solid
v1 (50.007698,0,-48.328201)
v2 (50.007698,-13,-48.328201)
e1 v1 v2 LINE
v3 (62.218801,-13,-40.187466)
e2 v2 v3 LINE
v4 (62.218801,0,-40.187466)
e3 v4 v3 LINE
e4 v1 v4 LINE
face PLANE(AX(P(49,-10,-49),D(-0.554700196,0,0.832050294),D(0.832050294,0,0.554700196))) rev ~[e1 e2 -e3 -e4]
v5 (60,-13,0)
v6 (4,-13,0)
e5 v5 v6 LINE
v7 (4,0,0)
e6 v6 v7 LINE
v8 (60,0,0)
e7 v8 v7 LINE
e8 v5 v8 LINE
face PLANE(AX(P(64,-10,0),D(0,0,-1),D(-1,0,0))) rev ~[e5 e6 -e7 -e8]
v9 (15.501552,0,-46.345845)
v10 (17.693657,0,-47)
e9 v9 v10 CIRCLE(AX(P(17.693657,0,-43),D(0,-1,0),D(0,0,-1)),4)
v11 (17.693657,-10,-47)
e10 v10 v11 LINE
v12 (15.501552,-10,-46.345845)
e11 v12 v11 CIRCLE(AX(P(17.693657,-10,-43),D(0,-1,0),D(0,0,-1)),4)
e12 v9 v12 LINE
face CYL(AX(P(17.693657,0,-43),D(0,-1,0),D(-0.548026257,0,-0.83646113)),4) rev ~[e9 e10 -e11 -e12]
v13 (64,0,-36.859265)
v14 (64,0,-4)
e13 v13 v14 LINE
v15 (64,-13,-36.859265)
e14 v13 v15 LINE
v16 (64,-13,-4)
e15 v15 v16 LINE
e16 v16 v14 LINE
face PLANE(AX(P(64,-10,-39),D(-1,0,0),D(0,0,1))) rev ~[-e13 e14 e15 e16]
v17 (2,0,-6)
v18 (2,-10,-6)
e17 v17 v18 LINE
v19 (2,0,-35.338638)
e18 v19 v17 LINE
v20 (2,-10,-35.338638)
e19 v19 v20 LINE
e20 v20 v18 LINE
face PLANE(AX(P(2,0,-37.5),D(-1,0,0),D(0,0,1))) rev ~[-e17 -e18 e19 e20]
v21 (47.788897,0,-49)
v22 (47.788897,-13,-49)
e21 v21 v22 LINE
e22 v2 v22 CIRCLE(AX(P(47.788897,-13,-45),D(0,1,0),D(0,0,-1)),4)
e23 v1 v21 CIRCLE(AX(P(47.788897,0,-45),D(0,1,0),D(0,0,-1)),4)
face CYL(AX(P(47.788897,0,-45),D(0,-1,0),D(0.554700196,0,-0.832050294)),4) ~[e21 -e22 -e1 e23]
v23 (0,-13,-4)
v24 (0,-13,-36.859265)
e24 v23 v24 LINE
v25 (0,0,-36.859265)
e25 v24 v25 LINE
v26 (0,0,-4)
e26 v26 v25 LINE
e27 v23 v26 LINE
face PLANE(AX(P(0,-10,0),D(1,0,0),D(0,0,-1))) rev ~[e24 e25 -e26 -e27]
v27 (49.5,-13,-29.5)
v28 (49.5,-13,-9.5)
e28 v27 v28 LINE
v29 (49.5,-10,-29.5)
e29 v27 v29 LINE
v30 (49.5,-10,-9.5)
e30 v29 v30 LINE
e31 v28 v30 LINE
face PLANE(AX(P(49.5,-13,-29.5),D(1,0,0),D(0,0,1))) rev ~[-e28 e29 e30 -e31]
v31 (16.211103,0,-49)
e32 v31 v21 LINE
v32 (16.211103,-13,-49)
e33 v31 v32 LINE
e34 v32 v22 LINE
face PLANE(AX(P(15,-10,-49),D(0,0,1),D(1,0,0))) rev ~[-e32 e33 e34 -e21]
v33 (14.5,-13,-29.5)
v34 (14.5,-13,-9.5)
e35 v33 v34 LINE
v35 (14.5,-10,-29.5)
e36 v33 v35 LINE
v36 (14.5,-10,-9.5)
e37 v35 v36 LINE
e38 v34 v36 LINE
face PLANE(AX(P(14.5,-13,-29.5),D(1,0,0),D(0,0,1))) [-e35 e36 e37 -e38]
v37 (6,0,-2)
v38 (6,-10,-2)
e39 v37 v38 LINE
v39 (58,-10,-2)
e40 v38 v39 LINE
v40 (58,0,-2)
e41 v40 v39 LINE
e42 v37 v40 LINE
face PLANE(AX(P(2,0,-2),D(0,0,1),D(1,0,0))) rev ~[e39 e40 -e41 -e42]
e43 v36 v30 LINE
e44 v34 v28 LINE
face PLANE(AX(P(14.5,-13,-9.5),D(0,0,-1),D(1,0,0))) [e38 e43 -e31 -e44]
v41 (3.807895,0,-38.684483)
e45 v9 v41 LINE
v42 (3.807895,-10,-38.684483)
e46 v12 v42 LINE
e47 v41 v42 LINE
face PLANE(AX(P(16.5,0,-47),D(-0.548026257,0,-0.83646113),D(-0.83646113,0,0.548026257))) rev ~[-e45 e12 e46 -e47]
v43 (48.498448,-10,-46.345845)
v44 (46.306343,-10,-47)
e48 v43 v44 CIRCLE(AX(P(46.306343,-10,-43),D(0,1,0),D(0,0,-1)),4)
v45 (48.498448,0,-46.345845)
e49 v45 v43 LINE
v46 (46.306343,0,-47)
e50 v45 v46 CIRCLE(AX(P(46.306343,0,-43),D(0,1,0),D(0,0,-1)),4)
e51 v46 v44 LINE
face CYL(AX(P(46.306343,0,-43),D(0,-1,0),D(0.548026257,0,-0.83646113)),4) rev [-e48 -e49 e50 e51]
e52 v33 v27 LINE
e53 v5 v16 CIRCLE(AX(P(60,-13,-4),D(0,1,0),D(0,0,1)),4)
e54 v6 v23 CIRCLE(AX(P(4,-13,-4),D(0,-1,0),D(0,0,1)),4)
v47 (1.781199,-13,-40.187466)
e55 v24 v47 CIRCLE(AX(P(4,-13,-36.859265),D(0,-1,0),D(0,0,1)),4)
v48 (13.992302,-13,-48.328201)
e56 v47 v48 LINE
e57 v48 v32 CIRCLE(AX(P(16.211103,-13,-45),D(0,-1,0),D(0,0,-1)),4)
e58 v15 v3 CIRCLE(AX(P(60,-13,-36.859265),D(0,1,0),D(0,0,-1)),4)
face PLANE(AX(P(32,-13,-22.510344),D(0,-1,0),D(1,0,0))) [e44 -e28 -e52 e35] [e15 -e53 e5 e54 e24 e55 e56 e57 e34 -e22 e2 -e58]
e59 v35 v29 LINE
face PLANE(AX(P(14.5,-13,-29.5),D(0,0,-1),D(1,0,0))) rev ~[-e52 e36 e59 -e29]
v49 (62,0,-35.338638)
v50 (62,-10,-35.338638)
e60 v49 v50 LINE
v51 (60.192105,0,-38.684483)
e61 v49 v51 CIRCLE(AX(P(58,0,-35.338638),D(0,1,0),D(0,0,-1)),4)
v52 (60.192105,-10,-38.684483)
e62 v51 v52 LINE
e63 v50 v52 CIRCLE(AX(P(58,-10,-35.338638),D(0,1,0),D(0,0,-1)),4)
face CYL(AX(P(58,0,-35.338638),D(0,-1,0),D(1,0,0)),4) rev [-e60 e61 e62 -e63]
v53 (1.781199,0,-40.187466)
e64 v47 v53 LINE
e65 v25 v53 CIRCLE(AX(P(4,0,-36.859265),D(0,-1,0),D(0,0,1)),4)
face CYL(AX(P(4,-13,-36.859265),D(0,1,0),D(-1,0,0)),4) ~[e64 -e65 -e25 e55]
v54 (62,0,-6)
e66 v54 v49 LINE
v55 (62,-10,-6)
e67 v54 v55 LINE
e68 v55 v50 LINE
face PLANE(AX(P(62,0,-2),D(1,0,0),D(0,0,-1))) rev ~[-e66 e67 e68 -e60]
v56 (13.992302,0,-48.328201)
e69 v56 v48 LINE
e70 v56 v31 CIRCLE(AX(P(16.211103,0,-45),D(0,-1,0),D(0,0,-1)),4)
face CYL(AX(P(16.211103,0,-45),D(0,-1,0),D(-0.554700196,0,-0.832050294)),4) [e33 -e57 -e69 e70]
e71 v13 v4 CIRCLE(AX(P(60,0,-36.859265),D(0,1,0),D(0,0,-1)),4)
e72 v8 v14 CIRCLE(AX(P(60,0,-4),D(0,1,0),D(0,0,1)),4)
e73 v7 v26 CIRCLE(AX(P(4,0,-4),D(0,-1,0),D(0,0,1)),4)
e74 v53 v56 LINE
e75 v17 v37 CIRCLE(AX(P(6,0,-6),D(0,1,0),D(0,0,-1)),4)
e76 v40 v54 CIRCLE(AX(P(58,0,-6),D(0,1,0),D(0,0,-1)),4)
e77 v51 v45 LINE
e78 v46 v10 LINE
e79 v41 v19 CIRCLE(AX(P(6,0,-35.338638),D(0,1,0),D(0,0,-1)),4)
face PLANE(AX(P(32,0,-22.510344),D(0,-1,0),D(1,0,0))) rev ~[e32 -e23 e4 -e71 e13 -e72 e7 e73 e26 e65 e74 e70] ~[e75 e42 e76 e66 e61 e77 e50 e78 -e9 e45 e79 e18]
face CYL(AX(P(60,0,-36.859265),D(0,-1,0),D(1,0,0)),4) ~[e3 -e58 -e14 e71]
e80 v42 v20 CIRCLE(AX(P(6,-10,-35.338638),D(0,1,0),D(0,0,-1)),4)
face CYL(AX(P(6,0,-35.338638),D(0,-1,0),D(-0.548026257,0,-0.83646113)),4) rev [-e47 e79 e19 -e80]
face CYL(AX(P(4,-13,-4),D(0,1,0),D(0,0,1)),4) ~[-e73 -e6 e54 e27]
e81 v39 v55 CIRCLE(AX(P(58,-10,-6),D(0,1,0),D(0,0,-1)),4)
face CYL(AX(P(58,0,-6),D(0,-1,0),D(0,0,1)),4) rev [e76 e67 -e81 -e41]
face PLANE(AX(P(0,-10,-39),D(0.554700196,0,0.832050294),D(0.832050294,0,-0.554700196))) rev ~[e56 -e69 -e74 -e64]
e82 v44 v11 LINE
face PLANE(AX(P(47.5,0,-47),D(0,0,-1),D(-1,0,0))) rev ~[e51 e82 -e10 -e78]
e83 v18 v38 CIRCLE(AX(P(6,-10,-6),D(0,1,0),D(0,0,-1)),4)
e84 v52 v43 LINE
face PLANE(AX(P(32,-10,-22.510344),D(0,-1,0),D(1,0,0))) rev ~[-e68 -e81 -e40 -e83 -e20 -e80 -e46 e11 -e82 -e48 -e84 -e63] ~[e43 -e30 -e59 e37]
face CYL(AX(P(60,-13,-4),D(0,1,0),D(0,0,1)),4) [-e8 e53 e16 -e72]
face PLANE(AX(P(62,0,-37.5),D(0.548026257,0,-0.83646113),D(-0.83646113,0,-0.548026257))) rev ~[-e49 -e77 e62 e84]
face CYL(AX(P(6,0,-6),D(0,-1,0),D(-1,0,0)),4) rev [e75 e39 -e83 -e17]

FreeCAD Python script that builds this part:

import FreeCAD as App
import Part
import Sketcher
Q = App.Units.Quantity


def edges_at(feature, points):
    """Names of the edges that pass closest to the given points."""
    edges = feature.Shape.Edges
    near = lambda p: min(range(len(edges)), key=lambda i: edges[i].distToShape(Part.Vertex(*p))[0])
    return sorted({f"Edge{near(p) + 1}" for p in points})

doc = App.newDocument("Part")
body = doc.addObject("PartDesign::Body", "Body")

# Sketch on XZ plane
sketch1 = doc.addObject("Sketcher::SketchObject", "Sketch")
body.addObject(sketch1)
sketch1.AttachmentSupport = (doc.XZ_Plane, [""])
sketch1.MapMode = "FlatFace"
sketch1.addGeometry([
    Part.LineSegment(App.Vector(64, 0, 0), App.Vector(0, 0, 0)),  # 0
    Part.LineSegment(App.Vector(0, 0, 0), App.Vector(0, -39, 0)),  # 1
    Part.LineSegment(App.Vector(0, -39, 0), App.Vector(15, -49, 0)),  # 2
    Part.LineSegment(App.Vector(15, -49, 0), App.Vector(49, -49, 0)),  # 3
    Part.LineSegment(App.Vector(49, -49, 0), App.Vector(64, -39, 0)),  # 4
    Part.LineSegment(App.Vector(64, -39, 0), App.Vector(64, 0, 0)),  # 5
    Part.LineSegment(App.Vector(16, -47, 0), App.Vector(2, -38, 0)),  # 6
    Part.LineSegment(App.Vector(2, -38, 0), App.Vector(2, -2, 0)),  # 7
    Part.LineSegment(App.Vector(2, -2, 0), App.Vector(62, -2, 0)),  # 8
    Part.LineSegment(App.Vector(62, -2, 0), App.Vector(62, -38, 0)),  # 9
    Part.LineSegment(App.Vector(62, -38, 0), App.Vector(48, -47, 0)),  # 10
    Part.LineSegment(App.Vector(48, -47, 0), App.Vector(16, -47, 0)),  # 11
], False)
sketch1.addConstraint([
    Sketcher.Constraint("Coincident", 0, 2, 1, 1),
    Sketcher.Constraint("Coincident", 1, 2, 2, 1),
    Sketcher.Constraint("Coincident", 2, 2, 3, 1),
    Sketcher.Constraint("Coincident", 3, 2, 4, 1),
    Sketcher.Constraint("Coincident", 4, 2, 5, 1),
    Sketcher.Constraint("Coincident", 5, 2, 0, 1),
    Sketcher.Constraint("Coincident", 6, 2, 7, 1),
    Sketcher.Constraint("Coincident", 7, 2, 8, 1),
    Sketcher.Constraint("Coincident", 8, 2, 9, 1),
    Sketcher.Constraint("Coincident", 9, 2, 10, 1),
    Sketcher.Constraint("Coincident", 10, 2, 11, 1),
    Sketcher.Constraint("Coincident", 11, 2, 6, 1),
    Sketcher.Constraint("Horizontal", 0),
    Sketcher.Constraint("Vertical", 1),
    Sketcher.Constraint("Horizontal", 3),
    Sketcher.Constraint("Vertical", 5),
    Sketcher.Constraint("Vertical", 7),
    Sketcher.Constraint("Horizontal", 8),
    Sketcher.Constraint("Vertical", 9),
    Sketcher.Constraint("Horizontal", 11),
    Sketcher.Constraint("Coincident", 0, 2, -1, 1),
    Sketcher.Constraint("Horizontal", 1, 2, 4, 2),
    Sketcher.Constraint("Horizontal", 6, 2, 9, 2),
    Sketcher.Constraint("Equal", 2, 4),
    Sketcher.Constraint("Equal", 6, 10),
    Sketcher.Constraint("DistanceX", 0, 2, 0, 1, Q("64 mm")),
    Sketcher.Constraint("DistanceX", 3, 1, 3, 2, Q("34 mm")),
    Sketcher.Constraint("DistanceX", 8, 1, 8, 2, Q("60 mm")),
    Sketcher.Constraint("DistanceX", 11, 2, 11, 1, Q("31 mm")),
    Sketcher.Constraint("DistanceY", 1, 2, 1, 1, Q("39 mm")),
    Sketcher.Constraint("DistanceY", 7, 1, 7, 2, Q("35.5 mm")),
    Sketcher.Constraint("DistanceY", 2, 2, -1, 1, Q("49 mm")),
    Sketcher.Constraint("DistanceX", -1, 1, 6, 2, Q("2 mm")),
    Sketcher.Constraint("DistanceY", 7, 2, -1, 1, Q("2 mm")),
    Sketcher.Constraint("DistanceY", 10, 2, -1, 1, Q("47 mm")),
])
pad1 = doc.addObject("PartDesign::Pad", "Pad")
body.addObject(pad1)
pad1.Profile = sketch1
pad1.Length = 10

# Sketch on XZ plane
sketch2 = doc.addObject("Sketcher::SketchObject", "Sketch001")
body.addObject(sketch2)
sketch2.AttachmentSupport = (doc.XZ_Plane, [""])
sketch2.MapMode = "FlatFace"
sketch2.AttachmentOffset = App.Placement(App.Vector(0, 0, 10), App.Rotation())
sketch2.addGeometry([
    Part.LineSegment(App.Vector(0, -39, 0), App.Vector(15, -49, 0)),  # 0
    Part.LineSegment(App.Vector(15, -49, 0), App.Vector(49, -49, 0)),  # 1
    Part.LineSegment(App.Vector(49, -49, 0), App.Vector(64, -39, 0)),  # 2
    Part.LineSegment(App.Vector(64, -39, 0), App.Vector(64, 0, 0)),  # 3
    Part.LineSegment(App.Vector(64, 0, 0), App.Vector(0, 0, 0)),  # 4
    Part.LineSegment(App.Vector(0, 0, 0), App.Vector(0, -39, 0)),  # 5
], False)
sketch2.addConstraint([
    Sketcher.Constraint("Coincident", 0, 2, 1, 1),
    Sketcher.Constraint("Coincident", 1, 2, 2, 1),
    Sketcher.Constraint("Coincident", 2, 2, 3, 1),
    Sketcher.Constraint("Coincident", 3, 2, 4, 1),
    Sketcher.Constraint("Coincident", 4, 2, 5, 1),
    Sketcher.Constraint("Coincident", 5, 2, 0, 1),
    Sketcher.Constraint("Horizontal", 1),
    Sketcher.Constraint("Vertical", 3),
    Sketcher.Constraint("Horizontal", 4),
    Sketcher.Constraint("Vertical", 5),
    Sketcher.Constraint("Coincident", 4, 2, -1, 1),
    Sketcher.Constraint("Horizontal", 2, 2, 5, 2),
    Sketcher.Constraint("Equal", 0, 2),
    Sketcher.Constraint("DistanceX", 1, 1, 1, 2, Q("34 mm")),
    Sketcher.Constraint("DistanceX", 4, 2, 4, 1, Q("64 mm")),
    Sketcher.Constraint("DistanceY", 3, 1, 3, 2, Q("39 mm")),
    Sketcher.Constraint("DistanceY", 0, 2, -1, 1, Q("49 mm")),
])
pad2 = doc.addObject("PartDesign::Pad", "Pad001")
body.addObject(pad2)
pad2.Profile = sketch2
pad2.Length = 3

# Sketch on XZ plane
sketch3 = doc.addObject("Sketcher::SketchObject", "Sketch002")
body.addObject(sketch3)
sketch3.AttachmentSupport = (doc.XZ_Plane, [""])
sketch3.MapMode = "FlatFace"
sketch3.AttachmentOffset = App.Placement(App.Vector(0, 0, 13), App.Rotation())
sketch3.addGeometry([
    Part.LineSegment(App.Vector(14, -10, 0), App.Vector(14, -30, 0)),
    Part.LineSegment(App.Vector(14, -30, 0), App.Vector(50, -30, 0)),
    Part.LineSegment(App.Vector(50, -30, 0), App.Vector(50, -10, 0)),
    Part.LineSegment(App.Vector(50, -10, 0), App.Vector(14, -10, 0)),
], False)
sketch3.addConstraint([
    Sketcher.Constraint("Coincident", 0, 2, 1, 1),
    Sketcher.Constraint("Coincident", 1, 2, 2, 1),
    Sketcher.Constraint("Coincident", 2, 2, 3, 1),
    Sketcher.Constraint("Coincident", 3, 2, 0, 1),
    Sketcher.Constraint("Vertical", 0),
    Sketcher.Constraint("Horizontal", 1),
    Sketcher.Constraint("Vertical", 2),
    Sketcher.Constraint("Horizontal", 3),
    Sketcher.Constraint("DistanceX", 1, 1, 1, 2, Q("35 mm")),
    Sketcher.Constraint("DistanceY", 0, 2, 0, 1, Q("20 mm")),
    Sketcher.Constraint("DistanceX", -1, 1, 0, 2, Q("14.5 mm")),
    Sketcher.Constraint("DistanceY", 0, 2, -1, 1, Q("29.5 mm")),
])
pocket1 = doc.addObject("PartDesign::Pocket", "Pocket")
body.addObject(pocket1)
pocket1.Profile = sketch3
pocket1.Length = 25
doc.recompute()

fillet = doc.addObject("PartDesign::Fillet", "Fillet")
body.addObject(fillet)
fillet.Base = (pocket1, edges_at(pocket1, [(64, -6.5, 0)]))
fillet.Radius = 4
doc.recompute()

fillet2 = doc.addObject("PartDesign::Fillet", "Fillet001")
body.addObject(fillet2)
fillet2.Base = (fillet, edges_at(fillet, [
    (0, -6.5, 0),
    (64, -6.5, -39),
    (49, -6.5, -49),
    (15, -6.5, -49),
    (0, -6.5, -39),
]))
fillet2.Radius = 4
doc.recompute()

fillet3 = doc.addObject("PartDesign::Fillet", "Fillet002")
body.addObject(fillet3)
fillet3.Base = (fillet2, edges_at(fillet2, [
    (2, -5, -2),
    (2, -5, -37.5),
    (62, -5, -2),
    (62, -5, -37.5),
    (47.5, -5, -47),
    (16.5, -5, -47),
]))
fillet3.Radius = 4

doc.recompute()
